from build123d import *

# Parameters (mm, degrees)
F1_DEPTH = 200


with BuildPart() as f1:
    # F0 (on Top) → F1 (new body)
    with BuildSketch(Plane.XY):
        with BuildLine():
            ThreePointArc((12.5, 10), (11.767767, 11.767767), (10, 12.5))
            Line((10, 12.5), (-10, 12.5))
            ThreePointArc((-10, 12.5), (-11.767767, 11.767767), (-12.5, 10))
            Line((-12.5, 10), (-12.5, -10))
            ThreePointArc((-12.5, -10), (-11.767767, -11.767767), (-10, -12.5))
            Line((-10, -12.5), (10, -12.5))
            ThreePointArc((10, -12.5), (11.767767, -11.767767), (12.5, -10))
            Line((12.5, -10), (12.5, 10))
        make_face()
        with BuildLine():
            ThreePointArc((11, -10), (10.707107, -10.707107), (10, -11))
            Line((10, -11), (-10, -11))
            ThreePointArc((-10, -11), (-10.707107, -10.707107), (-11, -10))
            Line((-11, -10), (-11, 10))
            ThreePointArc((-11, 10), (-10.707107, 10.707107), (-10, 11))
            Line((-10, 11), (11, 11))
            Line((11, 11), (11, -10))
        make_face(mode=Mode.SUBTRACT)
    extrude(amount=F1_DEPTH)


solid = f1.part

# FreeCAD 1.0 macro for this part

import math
import FreeCAD as App
import Part
import Sketcher
from FreeCAD import Vector

doc = App.newDocument("Part")
params = doc.addObject("Spreadsheet::Sheet", "Params")
for row, (alias, value) in enumerate([
    ("sketch1_radius", "0.999999 mm"),
    ("sketch1_radius2", "2.5 mm"),
    ("sketch1_width", "20 mm"),
    ("pad1_length", "200 mm"),
], start=1):
    params.set(f"A{row}", alias)
    params.set(f"B{row}", "=" + value)
    params.setAlias(f"B{row}", alias)

body = doc.addObject("PartDesign::Body", "Body")

sketch1 = body.newObject("Sketcher::SketchObject", "Sketch")
sketch1.AttachmentSupport = (doc.getObject("XY_Plane"), [""])
sketch1.MapMode = "FlatFace"
sketch1.addGeometry(Part.ArcOfCircle(Part.Circle(Vector(10, 10, 0), Vector(0, 0, 1), 2.5), math.radians(0), math.radians(90)), False)
sketch1.addGeometry(Part.LineSegment(Vector(10, 12.5, 0), Vector(-10, 12.5, 0)), False)
sketch1.addGeometry(Part.ArcOfCircle(Part.Circle(Vector(-10, 10, 0), Vector(0, 0, 1), 2.5), math.radians(90), math.radians(180)), False)
sketch1.addGeometry(Part.LineSegment(Vector(-12.5, 10, 0), Vector(-12.5, -10, 0)), False)
sketch1.addGeometry(Part.ArcOfCircle(Part.Circle(Vector(-10, -10, 0), Vector(0, 0, 1), 2.5), math.radians(180), math.radians(270)), False)
sketch1.addGeometry(Part.LineSegment(Vector(-10, -12.5, 0), Vector(10, -12.5, 0)), False)
sketch1.addGeometry(Part.ArcOfCircle(Part.Circle(Vector(10, -10, 0), Vector(0, 0, 1), 2.5), math.radians(-90), math.radians(0)), False)
sketch1.addGeometry(Part.LineSegment(Vector(12.5, -10, 0), Vector(12.5, 10, 0)), False)
sketch1.addGeometry(Part.LineSegment(Vector(11, 11, 0), Vector(11, -10, 0)), False)
sketch1.addGeometry(Part.ArcOfCircle(Part.Circle(Vector(10, -10, 0), Vector(0, 0, 1), 1), math.radians(-90), math.radians(0)), False)
sketch1.addGeometry(Part.LineSegment(Vector(10, -11, 0), Vector(-10, -11, 0)), False)
sketch1.addGeometry(Part.ArcOfCircle(Part.Circle(Vector(-10, -10, 0), Vector(0, 0, 1), 1), math.radians(180), math.radians(270)), False)
sketch1.addGeometry(Part.LineSegment(Vector(-11, -10, 0), Vector(-11, 10, 0)), False)
sketch1.addGeometry(Part.ArcOfCircle(Part.Circle(Vector(-10, 10, 0), Vector(0, 0, 1), 1), math.radians(90), math.radians(180)), False)
sketch1.addGeometry(Part.LineSegment(Vector(-10, 11, 0), Vector(11, 11, 0)), False)
sketch1.addConstraint(Sketcher.Constraint("Tangent", 0, 2, 1, 1))
sketch1.addConstraint(Sketcher.Constraint("Tangent", 1, 2, 2, 1))
sketch1.addConstraint(Sketcher.Constraint("Tangent", 2, 2, 3, 1))
sketch1.addConstraint(Sketcher.Constraint("Tangent", 3, 2, 4, 1))
sketch1.addConstraint(Sketcher.Constraint("Tangent", 4, 2, 5, 1))
sketch1.addConstraint(Sketcher.Constraint("Tangent", 5, 2, 6, 1))
sketch1.addConstraint(Sketcher.Constraint("Tangent", 6, 2, 7, 1))
sketch1.addConstraint(Sketcher.Constraint("Tangent", 7, 2, 0, 1))
sketch1.addConstraint(Sketcher.Constraint("Tangent", 8, 2, 9, 2))
sketch1.addConstraint(Sketcher.Constraint("Tangent", 9, 1, 10, 1))
sketch1.addConstraint(Sketcher.Constraint("Tangent", 10, 2, 11, 2))
sketch1.addConstraint(Sketcher.Constraint("Tangent", 11, 1, 12, 1))
sketch1.addConstraint(Sketcher.Constraint("Tangent", 12, 2, 13, 2))
sketch1.addConstraint(Sketcher.Constraint("Tangent", 13, 1, 14, 1))
sketch1.addConstraint(Sketcher.Constraint("Coincident", 14, 2, 8, 1))
sketch1.addConstraint(Sketcher.Constraint("Horizontal", 1))
sketch1.addConstraint(Sketcher.Constraint("Vertical", 3))
sketch1.addConstraint(Sketcher.Constraint("Horizontal", 5))
sketch1.addConstraint(Sketcher.Constraint("Vertical", 7))
sketch1.addConstraint(Sketcher.Constraint("Vertical", 8))
sketch1.addConstraint(Sketcher.Constraint("Horizontal", 10))
sketch1.addConstraint(Sketcher.Constraint("Vertical", 12))
sketch1.addConstraint(Sketcher.Constraint("Horizontal", 14))
sketch1.addConstraint(Sketcher.Constraint("Coincident", 9, 3, 6, 3))
sketch1.addConstraint(Sketcher.Constraint("Coincident", 11, 3, 4, 3))
sketch1.addConstraint(Sketcher.Constraint("Coincident", 13, 3, 2, 3))
sketch1.addConstraint(Sketcher.Constraint("Equal", 0, 2))
sketch1.addConstraint(Sketcher.Constraint("Equal", 2, 4))
sketch1.addConstraint(Sketcher.Constraint("Equal", 4, 6))
sketch1.addConstraint(Sketcher.Constraint("Symmetric", 0, 3, 4, 3, -1, 1))
sketch1.addConstraint(Sketcher.Constraint("Equal", 10, 3))
sketch1.addConstraint(Sketcher.Constraint("Radius", 9, 0.999999))
sketch1.addConstraint(Sketcher.Constraint("Radius", 0, 2.5))
sketch1.addConstraint(Sketcher.Constraint("DistanceX", 1, 2, 1, 1, 20.0))
sketch1.setExpression("Constraints[31]", "Params.sketch1_radius")
sketch1.setExpression("Constraints[32]", "Params.sketch1_radius2")
sketch1.setExpression("Constraints[33]", "Params.sketch1_width")
pad1 = body.newObject("PartDesign::Pad", "Pad")
pad1.Profile = sketch1
pad1.setExpression("Length", "Params.pad1_length")

doc.recompute()
